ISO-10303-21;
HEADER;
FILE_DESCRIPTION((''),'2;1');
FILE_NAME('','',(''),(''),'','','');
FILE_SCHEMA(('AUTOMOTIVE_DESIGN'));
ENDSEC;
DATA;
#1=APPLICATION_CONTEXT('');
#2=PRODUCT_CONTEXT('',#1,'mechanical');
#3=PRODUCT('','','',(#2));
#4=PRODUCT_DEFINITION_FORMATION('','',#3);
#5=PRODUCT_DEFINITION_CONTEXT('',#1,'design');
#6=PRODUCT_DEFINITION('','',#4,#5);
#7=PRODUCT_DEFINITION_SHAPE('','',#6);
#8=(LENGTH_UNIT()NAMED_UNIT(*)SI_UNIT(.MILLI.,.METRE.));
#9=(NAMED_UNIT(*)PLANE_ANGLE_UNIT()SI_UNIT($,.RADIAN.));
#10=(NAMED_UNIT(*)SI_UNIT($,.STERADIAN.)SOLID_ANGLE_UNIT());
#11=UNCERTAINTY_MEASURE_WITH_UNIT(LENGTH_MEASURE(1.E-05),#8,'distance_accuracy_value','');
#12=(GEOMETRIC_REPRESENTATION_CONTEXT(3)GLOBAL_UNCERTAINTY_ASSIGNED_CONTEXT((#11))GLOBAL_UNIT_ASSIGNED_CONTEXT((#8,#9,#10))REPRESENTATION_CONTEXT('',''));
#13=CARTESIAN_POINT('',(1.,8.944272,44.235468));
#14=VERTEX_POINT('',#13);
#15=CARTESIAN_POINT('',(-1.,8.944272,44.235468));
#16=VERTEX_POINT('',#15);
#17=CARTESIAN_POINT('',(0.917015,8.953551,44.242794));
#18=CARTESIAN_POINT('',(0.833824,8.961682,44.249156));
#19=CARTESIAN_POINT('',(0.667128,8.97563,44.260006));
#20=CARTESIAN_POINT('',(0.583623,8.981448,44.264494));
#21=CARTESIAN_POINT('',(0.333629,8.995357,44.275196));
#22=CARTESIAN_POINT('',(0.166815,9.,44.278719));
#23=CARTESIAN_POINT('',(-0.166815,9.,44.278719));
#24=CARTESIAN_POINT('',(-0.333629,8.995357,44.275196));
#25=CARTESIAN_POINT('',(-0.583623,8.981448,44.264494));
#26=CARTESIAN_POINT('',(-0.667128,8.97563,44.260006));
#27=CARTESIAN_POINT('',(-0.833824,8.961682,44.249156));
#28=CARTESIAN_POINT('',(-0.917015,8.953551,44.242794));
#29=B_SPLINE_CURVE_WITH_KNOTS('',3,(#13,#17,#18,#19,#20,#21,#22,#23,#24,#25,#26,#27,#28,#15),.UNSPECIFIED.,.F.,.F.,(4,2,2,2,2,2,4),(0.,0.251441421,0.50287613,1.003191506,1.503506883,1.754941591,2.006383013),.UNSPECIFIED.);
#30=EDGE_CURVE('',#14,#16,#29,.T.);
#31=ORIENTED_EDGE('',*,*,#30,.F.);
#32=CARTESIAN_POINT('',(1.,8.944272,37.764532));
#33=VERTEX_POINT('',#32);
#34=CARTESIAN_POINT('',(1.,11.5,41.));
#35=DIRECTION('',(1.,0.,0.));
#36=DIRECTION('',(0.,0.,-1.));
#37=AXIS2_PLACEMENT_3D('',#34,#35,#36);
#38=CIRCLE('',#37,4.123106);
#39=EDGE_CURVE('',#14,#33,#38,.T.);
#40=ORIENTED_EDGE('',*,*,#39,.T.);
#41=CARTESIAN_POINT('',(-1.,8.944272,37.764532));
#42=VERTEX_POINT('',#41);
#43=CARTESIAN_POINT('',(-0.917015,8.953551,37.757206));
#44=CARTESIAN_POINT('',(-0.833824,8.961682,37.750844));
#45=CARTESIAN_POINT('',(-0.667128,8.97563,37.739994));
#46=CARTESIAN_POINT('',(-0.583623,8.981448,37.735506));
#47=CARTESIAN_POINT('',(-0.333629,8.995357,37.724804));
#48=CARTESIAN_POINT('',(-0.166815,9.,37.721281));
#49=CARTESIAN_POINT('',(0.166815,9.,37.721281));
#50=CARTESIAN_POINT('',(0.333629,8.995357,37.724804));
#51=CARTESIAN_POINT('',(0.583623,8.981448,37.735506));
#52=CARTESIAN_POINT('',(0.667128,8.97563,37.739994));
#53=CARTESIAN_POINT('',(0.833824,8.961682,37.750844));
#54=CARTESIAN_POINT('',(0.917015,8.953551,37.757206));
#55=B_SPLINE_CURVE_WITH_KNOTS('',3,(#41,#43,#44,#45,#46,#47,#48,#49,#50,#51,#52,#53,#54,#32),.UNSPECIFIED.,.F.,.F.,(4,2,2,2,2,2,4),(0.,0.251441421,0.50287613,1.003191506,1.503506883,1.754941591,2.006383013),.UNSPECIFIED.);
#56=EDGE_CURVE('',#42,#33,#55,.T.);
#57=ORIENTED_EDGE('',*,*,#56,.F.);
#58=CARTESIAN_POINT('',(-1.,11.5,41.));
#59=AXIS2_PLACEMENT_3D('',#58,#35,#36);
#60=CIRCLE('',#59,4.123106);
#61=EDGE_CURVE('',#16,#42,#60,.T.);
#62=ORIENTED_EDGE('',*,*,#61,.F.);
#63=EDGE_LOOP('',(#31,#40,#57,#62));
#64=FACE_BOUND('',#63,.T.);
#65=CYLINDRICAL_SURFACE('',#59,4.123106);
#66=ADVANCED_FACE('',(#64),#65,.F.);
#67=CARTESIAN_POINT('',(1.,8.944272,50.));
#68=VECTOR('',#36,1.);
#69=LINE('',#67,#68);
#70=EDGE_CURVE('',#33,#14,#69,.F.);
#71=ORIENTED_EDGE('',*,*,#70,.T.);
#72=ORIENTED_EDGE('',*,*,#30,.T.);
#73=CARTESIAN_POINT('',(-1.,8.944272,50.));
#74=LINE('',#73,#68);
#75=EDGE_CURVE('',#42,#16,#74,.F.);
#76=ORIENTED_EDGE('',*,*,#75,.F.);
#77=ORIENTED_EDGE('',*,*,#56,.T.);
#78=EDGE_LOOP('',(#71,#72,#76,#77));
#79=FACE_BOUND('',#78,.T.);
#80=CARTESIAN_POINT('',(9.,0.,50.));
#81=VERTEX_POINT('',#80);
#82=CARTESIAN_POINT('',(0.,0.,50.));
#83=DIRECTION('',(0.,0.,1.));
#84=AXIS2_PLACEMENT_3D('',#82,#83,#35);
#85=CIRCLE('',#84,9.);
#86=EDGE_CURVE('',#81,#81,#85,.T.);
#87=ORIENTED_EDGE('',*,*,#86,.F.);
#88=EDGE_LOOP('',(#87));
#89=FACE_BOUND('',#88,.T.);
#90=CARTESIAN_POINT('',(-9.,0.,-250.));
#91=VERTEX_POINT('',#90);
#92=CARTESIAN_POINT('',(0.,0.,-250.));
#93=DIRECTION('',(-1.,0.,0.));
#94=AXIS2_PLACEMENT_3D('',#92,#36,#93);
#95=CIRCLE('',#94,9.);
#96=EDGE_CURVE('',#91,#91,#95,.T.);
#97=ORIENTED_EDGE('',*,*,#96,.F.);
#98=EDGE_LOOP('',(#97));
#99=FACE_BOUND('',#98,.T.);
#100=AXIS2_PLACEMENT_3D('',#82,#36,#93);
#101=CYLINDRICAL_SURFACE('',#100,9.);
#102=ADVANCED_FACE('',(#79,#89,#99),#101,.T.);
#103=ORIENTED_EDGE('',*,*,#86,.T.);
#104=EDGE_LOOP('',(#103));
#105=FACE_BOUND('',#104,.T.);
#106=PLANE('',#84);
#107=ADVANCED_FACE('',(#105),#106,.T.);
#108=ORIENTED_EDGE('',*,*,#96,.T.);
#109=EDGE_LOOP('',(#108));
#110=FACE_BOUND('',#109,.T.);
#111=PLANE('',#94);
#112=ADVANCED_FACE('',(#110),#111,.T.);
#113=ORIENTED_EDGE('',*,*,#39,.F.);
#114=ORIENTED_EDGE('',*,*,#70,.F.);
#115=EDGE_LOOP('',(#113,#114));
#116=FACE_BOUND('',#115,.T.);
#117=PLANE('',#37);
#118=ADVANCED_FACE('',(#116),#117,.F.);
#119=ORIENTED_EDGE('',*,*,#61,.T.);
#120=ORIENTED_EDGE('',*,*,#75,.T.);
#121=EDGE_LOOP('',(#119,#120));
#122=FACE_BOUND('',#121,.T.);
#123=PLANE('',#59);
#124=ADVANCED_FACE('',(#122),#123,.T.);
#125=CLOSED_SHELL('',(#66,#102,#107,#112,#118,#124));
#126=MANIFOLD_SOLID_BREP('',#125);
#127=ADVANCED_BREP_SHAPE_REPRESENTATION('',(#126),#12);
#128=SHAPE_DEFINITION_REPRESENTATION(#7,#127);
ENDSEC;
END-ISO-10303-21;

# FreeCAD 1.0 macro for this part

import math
import FreeCAD as App
import Part
import Sketcher

doc = App.newDocument("Part")
body = doc.addObject("PartDesign::Body", "Body")

sketch1 = doc.addObject("Sketcher::SketchObject", "Sketch")
body.addObject(sketch1)
sketch1.AttachmentSupport = (doc.XY_Plane, [""])
sketch1.MapMode = "FlatFace"
sketch1.addGeometry(Part.Circle(App.Vector(0, 0, 0), App.Vector(0, 0, 1), 9), False)
sketch1.addConstraint(Sketcher.Constraint("Coincident", 0, 3, -1, 1))
sketch1.addConstraint(Sketcher.Constraint("Diameter", 0, 18.0))
pad1 = doc.addObject("PartDesign::Pad", "Pad")
body.addObject(pad1)
pad1.Profile = sketch1
pad1.Length = 100
pad1.Midplane = True

sketch2 = doc.addObject("Sketcher::SketchObject", "Sketch001")
body.addObject(sketch2)
sketch2.AttachmentSupport = (doc.YZ_Plane, [""])
sketch2.MapMode = "FlatFace"
sketch2.addGeometry(Part.LineSegment(App.Vector(10.5, 37, 0), App.Vector(10.5, 45, 0)), False)
sketch2.addGeometry(Part.ArcOfCircle(Part.Circle(App.Vector(11.5, 41, 0), App.Vector(0, 0, 1), 4.1), math.radians(104), math.radians(256)), False)
sketch2.addConstraint(Sketcher.Constraint("Coincident", 0, 1, 1, 2))
sketch2.addConstraint(Sketcher.Constraint("Coincident", 1, 1, 0, 2))
sketch2.addConstraint(Sketcher.Constraint("Vertical", 0))
sketch2.addConstraint(Sketcher.Constraint("DistanceY", 0, 1, 0, 2, 8.0))
sketch2.addConstraint(Sketcher.Constraint("DistanceY", -1, 1, 1, 3, 41.0))
sketch2.addConstraint(Sketcher.Constraint("DistanceX", 0, 1, 1, 3, 1.0))
sketch2.addConstraint(Sketcher.Constraint("DistanceX", -1, 1, 1, 3, 11.5))
pocket1 = doc.addObject("PartDesign::Pocket", "Pocket")
body.addObject(pocket1)
pocket1.Profile = sketch2
pocket1.Length = 2
pocket1.Midplane = True

sketch3 = doc.addObject("Sketcher::SketchObject", "Sketch002")
body.addObject(sketch3)
sketch3.AttachmentSupport = (doc.XY_Plane, [""])
sketch3.MapMode = "FlatFace"
sketch3.AttachmentOffset = App.Placement(App.Vector(0, 0, -50), App.Rotation())
sketch3.addGeometry(Part.Circle(App.Vector(0, 0, 0), App.Vector(0, 0, 1), 9), False)
sketch3.addConstraint(Sketcher.Constraint("Coincident", 0, 3, -1, 1))
sketch3.addConstraint(Sketcher.Constraint("Diameter", 0, 18.0))
pad2 = doc.addObject("PartDesign::Pad", "Pad001")
body.addObject(pad2)
pad2.Profile = sketch3
pad2.Length = 200
pad2.Reversed = True

doc.recompute()
